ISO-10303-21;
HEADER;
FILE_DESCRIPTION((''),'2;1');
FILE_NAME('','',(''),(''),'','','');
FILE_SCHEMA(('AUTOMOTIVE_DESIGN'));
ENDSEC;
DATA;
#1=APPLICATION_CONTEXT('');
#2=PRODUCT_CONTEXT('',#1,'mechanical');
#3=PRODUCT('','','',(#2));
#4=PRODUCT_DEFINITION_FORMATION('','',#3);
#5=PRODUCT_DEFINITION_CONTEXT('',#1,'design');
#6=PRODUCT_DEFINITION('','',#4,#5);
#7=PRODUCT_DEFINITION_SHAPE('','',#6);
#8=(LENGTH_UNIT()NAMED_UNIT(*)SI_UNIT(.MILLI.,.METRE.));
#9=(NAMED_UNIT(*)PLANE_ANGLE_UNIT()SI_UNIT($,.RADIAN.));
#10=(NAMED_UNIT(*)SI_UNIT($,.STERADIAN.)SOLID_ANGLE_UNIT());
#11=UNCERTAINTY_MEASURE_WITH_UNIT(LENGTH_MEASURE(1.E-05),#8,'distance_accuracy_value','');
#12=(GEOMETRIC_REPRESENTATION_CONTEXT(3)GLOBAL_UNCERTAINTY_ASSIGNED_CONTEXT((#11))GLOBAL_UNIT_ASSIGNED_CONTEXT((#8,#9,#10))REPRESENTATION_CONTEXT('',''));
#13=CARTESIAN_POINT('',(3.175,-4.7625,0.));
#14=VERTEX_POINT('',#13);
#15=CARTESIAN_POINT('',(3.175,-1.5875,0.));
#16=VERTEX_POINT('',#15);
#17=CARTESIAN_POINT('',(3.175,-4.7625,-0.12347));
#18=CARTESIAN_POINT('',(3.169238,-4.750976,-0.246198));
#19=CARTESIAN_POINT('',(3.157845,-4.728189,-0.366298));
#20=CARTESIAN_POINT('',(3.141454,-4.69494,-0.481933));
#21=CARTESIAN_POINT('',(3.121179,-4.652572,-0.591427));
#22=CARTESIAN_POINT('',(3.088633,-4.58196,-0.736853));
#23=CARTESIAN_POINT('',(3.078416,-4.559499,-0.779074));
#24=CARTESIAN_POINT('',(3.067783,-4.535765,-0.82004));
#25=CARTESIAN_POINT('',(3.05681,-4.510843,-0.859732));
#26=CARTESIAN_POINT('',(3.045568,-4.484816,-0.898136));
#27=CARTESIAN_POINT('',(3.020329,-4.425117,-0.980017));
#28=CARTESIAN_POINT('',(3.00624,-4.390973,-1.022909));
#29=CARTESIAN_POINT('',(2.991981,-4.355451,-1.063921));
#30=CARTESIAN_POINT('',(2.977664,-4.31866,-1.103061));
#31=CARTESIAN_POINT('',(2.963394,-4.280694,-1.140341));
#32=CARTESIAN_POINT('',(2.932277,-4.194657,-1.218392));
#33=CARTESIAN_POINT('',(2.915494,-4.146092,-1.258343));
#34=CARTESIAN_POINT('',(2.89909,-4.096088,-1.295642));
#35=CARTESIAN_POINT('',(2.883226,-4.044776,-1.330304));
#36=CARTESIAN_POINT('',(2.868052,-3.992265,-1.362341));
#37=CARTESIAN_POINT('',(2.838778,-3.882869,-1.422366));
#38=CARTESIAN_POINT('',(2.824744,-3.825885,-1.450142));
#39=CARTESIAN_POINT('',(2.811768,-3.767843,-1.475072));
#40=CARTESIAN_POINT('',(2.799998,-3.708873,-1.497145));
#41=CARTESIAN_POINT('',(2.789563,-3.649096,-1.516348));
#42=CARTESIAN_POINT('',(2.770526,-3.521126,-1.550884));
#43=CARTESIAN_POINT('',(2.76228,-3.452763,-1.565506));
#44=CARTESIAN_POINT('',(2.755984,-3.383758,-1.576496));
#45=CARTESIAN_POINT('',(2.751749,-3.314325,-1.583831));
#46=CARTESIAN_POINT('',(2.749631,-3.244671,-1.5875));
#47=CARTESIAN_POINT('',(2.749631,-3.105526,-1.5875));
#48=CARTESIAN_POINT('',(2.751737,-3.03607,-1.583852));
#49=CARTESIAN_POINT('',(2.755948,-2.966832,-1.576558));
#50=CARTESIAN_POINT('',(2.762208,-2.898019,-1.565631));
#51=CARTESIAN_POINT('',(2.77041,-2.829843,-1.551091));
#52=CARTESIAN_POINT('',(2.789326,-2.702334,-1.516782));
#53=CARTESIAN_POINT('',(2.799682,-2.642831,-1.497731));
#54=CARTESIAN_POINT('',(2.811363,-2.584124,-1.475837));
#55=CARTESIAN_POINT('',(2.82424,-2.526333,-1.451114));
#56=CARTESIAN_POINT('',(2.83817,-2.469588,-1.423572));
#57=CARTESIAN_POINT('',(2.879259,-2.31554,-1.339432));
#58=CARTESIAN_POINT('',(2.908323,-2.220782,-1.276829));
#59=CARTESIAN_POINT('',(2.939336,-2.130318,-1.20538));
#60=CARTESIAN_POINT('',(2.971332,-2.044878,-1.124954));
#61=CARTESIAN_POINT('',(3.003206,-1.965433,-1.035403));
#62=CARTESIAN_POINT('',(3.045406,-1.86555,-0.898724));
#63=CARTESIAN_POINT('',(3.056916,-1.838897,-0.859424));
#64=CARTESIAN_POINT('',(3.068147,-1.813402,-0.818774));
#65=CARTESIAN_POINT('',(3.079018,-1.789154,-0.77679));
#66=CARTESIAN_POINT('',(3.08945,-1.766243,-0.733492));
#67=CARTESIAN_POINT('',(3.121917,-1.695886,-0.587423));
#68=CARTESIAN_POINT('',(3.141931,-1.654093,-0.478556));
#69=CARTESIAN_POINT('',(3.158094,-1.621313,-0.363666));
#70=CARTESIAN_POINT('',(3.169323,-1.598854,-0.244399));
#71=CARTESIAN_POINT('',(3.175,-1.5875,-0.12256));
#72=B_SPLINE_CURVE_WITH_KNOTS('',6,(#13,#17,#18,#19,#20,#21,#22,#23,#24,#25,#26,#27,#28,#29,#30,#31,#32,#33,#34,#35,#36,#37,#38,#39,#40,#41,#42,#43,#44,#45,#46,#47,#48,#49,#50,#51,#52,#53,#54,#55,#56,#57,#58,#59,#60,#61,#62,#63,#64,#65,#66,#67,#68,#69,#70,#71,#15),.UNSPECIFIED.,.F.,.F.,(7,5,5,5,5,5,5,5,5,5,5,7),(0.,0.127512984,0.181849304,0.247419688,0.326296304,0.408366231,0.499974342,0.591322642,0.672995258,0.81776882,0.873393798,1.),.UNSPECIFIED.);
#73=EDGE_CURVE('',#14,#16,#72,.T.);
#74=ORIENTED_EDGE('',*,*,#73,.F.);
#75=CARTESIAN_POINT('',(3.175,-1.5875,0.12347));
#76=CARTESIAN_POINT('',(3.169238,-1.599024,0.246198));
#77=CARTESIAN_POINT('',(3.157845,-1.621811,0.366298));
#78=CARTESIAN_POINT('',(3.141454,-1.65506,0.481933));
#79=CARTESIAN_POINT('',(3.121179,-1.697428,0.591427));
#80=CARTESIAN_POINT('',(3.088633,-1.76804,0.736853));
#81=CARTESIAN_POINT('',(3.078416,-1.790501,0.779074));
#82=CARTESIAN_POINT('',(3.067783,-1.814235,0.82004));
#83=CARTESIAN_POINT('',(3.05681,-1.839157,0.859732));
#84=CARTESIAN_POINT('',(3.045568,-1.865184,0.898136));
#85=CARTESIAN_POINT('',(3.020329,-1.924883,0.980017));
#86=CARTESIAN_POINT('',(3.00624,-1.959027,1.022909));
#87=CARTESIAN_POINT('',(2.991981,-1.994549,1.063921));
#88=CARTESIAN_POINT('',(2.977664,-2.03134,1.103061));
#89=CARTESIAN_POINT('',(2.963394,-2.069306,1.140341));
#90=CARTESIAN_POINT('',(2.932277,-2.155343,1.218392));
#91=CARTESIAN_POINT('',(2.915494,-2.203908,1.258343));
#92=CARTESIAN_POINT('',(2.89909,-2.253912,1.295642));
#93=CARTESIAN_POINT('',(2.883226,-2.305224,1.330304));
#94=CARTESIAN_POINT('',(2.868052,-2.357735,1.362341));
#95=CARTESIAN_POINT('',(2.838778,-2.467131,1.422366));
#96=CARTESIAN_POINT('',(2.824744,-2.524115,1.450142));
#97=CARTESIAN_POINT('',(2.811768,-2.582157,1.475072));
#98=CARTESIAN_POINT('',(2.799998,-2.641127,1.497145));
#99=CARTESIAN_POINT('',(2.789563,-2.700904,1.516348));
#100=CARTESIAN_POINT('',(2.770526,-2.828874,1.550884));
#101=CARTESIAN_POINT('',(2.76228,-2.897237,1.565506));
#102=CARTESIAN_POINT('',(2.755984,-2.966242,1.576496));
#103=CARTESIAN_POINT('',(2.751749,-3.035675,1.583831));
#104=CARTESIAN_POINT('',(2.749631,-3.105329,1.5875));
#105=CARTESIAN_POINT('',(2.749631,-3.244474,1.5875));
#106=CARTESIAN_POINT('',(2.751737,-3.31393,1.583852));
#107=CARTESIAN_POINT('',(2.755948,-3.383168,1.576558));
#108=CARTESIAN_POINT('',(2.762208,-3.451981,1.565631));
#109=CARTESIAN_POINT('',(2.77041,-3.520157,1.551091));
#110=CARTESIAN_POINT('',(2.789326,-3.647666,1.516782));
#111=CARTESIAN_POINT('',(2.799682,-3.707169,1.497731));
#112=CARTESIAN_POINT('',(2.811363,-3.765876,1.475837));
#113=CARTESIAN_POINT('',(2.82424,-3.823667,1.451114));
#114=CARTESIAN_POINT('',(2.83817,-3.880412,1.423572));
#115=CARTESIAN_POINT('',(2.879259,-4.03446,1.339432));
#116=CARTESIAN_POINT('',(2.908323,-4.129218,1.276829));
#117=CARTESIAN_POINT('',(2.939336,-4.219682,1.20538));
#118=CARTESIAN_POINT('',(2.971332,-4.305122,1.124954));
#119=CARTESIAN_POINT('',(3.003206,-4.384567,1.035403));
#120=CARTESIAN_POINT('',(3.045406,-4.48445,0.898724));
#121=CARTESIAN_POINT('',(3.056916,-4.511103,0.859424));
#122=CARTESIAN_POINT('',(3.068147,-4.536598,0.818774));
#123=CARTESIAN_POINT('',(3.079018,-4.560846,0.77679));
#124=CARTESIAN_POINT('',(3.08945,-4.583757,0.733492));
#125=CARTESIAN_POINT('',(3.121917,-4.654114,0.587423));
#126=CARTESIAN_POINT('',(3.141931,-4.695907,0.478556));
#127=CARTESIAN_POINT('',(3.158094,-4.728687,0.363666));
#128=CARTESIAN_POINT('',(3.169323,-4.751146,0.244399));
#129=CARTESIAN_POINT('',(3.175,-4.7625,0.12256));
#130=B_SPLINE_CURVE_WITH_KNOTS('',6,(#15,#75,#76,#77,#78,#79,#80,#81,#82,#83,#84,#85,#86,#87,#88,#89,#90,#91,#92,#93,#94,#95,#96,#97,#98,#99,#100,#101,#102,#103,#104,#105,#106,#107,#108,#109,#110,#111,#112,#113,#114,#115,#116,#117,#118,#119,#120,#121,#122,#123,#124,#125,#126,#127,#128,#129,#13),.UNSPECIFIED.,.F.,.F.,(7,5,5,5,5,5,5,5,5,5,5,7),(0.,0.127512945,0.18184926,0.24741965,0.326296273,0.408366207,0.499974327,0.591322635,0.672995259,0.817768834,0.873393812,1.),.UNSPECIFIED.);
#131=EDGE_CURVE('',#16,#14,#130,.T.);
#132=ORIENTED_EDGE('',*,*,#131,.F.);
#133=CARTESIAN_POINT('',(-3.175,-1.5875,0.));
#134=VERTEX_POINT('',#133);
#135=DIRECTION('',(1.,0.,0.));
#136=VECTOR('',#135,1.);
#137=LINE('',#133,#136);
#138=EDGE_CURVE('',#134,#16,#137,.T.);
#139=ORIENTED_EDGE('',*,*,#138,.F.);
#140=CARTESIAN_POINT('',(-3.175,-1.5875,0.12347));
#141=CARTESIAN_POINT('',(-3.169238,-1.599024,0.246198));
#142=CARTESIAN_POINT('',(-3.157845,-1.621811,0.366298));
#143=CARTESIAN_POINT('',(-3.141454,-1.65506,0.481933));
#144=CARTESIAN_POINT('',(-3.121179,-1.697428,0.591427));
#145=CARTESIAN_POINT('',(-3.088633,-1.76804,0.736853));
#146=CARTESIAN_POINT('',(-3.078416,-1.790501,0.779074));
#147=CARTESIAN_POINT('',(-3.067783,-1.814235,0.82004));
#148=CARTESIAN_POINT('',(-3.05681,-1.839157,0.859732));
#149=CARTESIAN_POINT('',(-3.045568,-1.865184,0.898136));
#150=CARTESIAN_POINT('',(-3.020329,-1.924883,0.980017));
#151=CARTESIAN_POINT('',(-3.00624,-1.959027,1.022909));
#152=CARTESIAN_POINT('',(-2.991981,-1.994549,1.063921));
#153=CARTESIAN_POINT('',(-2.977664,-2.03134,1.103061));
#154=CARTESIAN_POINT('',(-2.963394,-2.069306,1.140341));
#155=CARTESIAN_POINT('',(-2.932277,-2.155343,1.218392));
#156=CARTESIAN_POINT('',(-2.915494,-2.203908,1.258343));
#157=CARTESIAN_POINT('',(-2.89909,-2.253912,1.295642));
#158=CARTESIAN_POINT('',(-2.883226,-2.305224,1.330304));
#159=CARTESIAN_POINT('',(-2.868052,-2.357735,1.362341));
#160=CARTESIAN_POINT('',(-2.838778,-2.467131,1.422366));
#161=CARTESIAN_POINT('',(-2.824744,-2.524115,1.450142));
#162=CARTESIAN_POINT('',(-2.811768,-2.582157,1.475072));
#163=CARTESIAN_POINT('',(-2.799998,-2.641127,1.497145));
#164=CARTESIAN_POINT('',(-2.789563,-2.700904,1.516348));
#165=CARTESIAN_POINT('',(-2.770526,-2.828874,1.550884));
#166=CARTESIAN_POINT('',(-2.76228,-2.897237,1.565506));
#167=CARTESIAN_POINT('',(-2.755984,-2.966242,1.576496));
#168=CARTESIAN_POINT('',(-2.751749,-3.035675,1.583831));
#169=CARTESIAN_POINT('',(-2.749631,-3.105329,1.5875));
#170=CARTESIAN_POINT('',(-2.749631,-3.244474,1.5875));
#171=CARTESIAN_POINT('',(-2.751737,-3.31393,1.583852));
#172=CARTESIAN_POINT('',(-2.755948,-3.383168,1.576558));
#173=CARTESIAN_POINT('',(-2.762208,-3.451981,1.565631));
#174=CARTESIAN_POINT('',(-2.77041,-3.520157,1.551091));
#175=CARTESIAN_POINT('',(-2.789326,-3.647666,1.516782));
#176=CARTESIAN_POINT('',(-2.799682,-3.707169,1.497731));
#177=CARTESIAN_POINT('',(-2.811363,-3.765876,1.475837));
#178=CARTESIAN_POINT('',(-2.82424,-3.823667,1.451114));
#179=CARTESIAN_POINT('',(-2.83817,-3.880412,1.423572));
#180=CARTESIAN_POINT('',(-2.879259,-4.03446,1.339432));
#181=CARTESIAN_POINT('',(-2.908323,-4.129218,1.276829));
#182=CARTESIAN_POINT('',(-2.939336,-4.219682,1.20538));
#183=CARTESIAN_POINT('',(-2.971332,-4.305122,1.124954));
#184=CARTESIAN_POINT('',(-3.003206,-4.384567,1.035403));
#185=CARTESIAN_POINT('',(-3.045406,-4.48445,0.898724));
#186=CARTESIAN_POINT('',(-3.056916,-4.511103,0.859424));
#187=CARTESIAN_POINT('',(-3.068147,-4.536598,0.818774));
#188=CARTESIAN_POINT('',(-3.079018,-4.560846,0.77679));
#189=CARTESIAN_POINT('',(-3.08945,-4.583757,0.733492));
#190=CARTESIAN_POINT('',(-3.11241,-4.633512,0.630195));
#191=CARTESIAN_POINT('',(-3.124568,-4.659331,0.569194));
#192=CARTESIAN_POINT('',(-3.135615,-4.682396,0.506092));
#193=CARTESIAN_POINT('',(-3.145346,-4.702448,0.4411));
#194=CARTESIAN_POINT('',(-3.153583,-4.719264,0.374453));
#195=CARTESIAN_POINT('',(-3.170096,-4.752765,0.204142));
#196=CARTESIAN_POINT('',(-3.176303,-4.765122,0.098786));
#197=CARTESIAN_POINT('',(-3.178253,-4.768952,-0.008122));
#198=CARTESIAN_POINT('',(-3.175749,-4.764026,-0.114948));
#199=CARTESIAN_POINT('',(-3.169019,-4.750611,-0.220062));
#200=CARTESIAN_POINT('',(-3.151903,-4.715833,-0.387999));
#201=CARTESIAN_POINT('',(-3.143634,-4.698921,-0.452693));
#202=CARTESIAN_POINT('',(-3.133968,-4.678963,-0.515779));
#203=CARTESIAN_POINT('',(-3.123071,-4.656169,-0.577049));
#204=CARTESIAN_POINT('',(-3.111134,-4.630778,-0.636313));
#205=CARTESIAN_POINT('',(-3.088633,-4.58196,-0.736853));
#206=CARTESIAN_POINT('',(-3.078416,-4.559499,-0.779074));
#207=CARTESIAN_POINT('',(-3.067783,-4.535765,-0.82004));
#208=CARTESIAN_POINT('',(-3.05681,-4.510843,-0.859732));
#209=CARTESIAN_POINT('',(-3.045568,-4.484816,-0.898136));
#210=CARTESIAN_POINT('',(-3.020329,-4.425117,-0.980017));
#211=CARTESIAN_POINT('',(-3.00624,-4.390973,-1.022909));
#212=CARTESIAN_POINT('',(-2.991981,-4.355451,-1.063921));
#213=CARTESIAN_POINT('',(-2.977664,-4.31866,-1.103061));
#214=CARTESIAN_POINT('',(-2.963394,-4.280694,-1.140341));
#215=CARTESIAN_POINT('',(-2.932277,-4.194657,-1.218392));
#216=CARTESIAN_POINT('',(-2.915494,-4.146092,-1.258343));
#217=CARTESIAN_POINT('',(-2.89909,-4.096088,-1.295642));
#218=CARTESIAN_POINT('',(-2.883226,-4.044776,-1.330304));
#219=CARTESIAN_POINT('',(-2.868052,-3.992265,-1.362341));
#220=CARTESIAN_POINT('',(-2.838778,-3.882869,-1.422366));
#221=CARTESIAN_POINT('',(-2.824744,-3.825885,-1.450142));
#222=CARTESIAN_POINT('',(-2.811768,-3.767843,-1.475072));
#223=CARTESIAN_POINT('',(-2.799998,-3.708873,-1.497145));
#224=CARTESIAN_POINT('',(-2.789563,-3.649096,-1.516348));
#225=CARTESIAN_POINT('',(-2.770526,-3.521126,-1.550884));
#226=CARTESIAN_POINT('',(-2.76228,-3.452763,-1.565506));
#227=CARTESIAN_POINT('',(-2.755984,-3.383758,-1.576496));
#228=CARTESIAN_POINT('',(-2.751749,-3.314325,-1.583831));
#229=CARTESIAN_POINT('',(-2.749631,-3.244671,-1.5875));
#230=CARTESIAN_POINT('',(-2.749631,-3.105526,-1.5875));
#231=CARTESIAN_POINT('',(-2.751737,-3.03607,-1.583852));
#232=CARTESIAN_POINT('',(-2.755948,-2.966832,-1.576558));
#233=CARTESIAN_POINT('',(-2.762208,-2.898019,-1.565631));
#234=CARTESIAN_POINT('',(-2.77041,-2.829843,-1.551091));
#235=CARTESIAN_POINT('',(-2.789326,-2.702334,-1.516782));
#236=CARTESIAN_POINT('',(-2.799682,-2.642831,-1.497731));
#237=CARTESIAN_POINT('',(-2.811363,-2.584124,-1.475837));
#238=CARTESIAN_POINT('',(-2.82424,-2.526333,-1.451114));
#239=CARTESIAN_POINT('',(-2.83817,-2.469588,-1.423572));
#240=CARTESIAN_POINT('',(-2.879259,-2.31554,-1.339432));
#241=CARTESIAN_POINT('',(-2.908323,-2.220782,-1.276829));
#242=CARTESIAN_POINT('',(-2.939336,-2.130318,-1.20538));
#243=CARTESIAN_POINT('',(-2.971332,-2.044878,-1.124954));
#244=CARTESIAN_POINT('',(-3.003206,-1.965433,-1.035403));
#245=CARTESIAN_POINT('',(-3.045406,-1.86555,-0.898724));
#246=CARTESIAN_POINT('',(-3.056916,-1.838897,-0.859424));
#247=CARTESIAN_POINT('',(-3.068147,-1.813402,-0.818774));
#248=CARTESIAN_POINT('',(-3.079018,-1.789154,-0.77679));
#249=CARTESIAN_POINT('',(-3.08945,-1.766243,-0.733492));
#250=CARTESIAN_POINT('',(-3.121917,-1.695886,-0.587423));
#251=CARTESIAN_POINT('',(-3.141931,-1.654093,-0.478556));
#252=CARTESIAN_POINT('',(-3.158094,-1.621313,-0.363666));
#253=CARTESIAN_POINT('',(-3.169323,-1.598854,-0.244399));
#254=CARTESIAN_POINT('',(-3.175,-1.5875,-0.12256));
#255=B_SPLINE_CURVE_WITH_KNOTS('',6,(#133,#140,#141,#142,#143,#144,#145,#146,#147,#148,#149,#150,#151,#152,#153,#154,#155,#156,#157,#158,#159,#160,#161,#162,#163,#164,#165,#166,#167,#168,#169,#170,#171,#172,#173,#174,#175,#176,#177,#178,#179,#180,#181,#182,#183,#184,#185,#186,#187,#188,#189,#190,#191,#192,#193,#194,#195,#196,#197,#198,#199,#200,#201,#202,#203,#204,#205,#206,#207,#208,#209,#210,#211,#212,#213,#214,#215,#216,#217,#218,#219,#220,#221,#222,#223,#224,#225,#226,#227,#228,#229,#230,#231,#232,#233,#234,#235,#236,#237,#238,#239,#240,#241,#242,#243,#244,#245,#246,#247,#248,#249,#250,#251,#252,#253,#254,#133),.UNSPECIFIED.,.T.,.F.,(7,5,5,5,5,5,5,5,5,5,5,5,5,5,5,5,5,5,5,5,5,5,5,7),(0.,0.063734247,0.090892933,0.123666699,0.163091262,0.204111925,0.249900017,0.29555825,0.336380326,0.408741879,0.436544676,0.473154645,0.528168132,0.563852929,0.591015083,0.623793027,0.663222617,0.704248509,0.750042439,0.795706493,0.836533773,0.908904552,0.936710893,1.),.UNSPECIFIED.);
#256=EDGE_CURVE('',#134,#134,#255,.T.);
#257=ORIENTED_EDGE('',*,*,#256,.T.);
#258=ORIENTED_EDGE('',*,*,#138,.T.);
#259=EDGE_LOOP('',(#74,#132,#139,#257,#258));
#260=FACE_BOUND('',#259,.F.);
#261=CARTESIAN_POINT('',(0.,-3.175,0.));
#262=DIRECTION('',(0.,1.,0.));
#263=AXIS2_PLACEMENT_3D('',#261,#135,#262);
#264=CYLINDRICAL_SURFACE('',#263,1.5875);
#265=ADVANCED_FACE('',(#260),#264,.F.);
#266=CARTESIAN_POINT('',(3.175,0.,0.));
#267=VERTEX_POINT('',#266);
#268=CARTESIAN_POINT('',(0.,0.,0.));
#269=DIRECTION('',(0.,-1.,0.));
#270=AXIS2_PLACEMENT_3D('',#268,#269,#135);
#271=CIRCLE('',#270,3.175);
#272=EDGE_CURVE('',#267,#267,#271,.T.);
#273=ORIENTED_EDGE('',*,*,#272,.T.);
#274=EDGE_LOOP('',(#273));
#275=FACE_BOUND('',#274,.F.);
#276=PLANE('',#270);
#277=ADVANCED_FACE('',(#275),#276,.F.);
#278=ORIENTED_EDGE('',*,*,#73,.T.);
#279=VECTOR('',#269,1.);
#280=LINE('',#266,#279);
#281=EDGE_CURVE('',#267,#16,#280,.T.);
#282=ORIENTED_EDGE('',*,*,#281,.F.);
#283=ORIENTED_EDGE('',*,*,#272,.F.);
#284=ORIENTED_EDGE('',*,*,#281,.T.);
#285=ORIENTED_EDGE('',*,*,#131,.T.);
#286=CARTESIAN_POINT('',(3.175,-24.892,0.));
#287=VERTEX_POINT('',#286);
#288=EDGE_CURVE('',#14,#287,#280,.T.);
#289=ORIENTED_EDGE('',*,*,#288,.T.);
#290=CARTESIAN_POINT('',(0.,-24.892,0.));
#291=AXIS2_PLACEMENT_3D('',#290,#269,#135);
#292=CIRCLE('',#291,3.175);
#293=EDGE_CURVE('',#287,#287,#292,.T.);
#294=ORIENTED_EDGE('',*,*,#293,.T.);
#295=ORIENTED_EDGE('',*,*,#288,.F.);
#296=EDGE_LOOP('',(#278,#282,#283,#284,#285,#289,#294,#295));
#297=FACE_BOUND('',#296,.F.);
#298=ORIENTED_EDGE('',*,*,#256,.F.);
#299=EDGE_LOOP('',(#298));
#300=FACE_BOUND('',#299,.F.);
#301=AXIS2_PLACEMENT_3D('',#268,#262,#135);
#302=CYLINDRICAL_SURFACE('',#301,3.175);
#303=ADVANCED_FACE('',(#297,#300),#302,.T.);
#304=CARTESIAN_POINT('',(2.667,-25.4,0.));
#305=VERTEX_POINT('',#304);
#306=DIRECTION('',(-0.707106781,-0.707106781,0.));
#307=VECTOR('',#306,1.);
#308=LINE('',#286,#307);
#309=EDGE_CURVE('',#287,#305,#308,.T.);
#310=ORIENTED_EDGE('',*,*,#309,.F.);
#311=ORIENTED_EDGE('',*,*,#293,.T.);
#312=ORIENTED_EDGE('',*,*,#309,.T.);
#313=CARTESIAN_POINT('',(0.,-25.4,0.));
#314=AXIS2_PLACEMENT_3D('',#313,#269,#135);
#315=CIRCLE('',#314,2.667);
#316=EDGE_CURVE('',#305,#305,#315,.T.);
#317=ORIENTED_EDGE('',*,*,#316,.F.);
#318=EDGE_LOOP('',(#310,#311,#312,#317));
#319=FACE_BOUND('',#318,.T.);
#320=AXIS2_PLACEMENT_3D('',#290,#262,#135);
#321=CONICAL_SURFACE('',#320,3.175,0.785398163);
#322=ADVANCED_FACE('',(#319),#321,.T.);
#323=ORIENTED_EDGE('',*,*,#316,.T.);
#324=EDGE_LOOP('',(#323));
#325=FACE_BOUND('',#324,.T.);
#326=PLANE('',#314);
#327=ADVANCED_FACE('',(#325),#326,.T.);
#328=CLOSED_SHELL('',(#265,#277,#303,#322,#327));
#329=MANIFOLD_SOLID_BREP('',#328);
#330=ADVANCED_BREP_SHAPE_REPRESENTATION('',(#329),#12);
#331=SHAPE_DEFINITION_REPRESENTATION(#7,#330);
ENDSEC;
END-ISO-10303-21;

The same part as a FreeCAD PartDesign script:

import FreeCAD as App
import Part
import Sketcher
Q = App.Units.Quantity


def edges_at(feature, points):
    """Names of the edges that pass closest to the given points."""
    edges = feature.Shape.Edges
    near = lambda p: min(range(len(edges)), key=lambda i: edges[i].distToShape(Part.Vertex(*p))[0])
    return sorted({f"Edge{near(p) + 1}" for p in points})

doc = App.newDocument("Part")
body = doc.addObject("PartDesign::Body", "Body")

sketch1 = body.newObject("Sketcher::SketchObject", "Sketch")
sketch1.AttachmentSupport = (doc.getObject("XZ_Plane"), [""])
sketch1.MapMode = "FlatFace"
sketch1.addGeometry(Part.Circle(App.Vector(0, 0, 0), App.Vector(0, 0, 1), 3.2), False)
sketch1.addConstraint([
    Sketcher.Constraint("Coincident", 0, 3, -1, 1),
    Sketcher.Constraint("Diameter", 0, Q("0.25 in")),
])
pad1 = body.newObject("PartDesign::Pad", "Pad")
pad1.Profile = sketch1
pad1.Length = Q("1 in")
doc.recompute()

chamfer = body.newObject("PartDesign::Chamfer", "Chamfer")
chamfer.Base = (pad1, edges_at(pad1, [(-3.175, -25.4, 0)]))
chamfer.Size = Q("0.02 in")

sketch2 = body.newObject("Sketcher::SketchObject", "Sketch001")
sketch2.AttachmentSupport = (doc.getObject("YZ_Plane"), [""])
sketch2.MapMode = "FlatFace"
sketch2.addGeometry(Part.Circle(App.Vector(-3.2, 0, 0), App.Vector(0, 0, 1), 1.6), False)
sketch2.addConstraint([
    Sketcher.Constraint("PointOnObject", 0, 3, -1),
    Sketcher.Constraint("Diameter", 0, Q("0.125 in")),
    Sketcher.Constraint("DistanceX", 0, 3, -1, 1, Q("0.125 in")),
])
pocket1 = body.newObject("PartDesign::Pocket", "Pocket")
pocket1.Profile = sketch2
pocket1.Length = Q("0.25 in")
pocket1.Midplane = True

doc.recompute()
